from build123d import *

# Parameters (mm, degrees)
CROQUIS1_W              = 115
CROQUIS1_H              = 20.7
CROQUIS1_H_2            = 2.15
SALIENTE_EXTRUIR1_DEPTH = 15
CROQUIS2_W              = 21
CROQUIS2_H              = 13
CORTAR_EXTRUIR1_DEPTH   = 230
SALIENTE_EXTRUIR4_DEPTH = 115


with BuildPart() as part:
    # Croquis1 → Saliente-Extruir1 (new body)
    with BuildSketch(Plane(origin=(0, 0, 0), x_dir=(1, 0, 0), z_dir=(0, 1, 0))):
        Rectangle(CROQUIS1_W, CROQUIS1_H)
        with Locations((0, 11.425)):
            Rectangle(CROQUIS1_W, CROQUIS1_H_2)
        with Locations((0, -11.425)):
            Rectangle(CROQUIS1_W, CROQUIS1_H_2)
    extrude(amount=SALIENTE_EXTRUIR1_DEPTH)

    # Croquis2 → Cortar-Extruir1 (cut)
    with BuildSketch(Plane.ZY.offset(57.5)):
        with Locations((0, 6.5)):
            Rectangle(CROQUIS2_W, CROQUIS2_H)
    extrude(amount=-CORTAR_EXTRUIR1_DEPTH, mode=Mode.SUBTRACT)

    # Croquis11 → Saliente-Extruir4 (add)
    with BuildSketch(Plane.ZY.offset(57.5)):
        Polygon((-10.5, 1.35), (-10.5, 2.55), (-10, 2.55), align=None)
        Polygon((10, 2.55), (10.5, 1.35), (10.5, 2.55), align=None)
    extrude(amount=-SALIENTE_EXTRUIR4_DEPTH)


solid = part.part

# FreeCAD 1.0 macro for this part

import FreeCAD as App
import Part
import Sketcher
from FreeCAD import Vector

doc = App.newDocument("Part")
body = doc.addObject("PartDesign::Body", "Body")

sketch1 = body.newObject("Sketcher::SketchObject", "Sketch")
sketch1.AttachmentSupport = (doc.getObject("XZ_Plane"), [""])
sketch1.MapMode = "FlatFace"
sketch1.addGeometry([
    Part.LineSegment(Vector(57.5, -12.5, 0), Vector(-57.5, -12.5, 0)),
    Part.LineSegment(Vector(-57.5, -12.5, 0), Vector(-57.5, 12.5, 0)),
    Part.LineSegment(Vector(-57.5, 12.5, 0), Vector(57.5, 12.5, 0)),
    Part.LineSegment(Vector(57.5, 12.5, 0), Vector(57.5, -12.5, 0)),
], False)
sketch1.addConstraint([
    Sketcher.Constraint("Coincident", 0, 2, 1, 1),
    Sketcher.Constraint("Coincident", 1, 2, 2, 1),
    Sketcher.Constraint("Coincident", 2, 2, 3, 1),
    Sketcher.Constraint("Coincident", 3, 2, 0, 1),
    Sketcher.Constraint("Horizontal", 0),
    Sketcher.Constraint("Vertical", 1),
    Sketcher.Constraint("Horizontal", 2),
    Sketcher.Constraint("Vertical", 3),
    Sketcher.Constraint("Symmetric", 0, 2, 2, 2, -1, 1),
    Sketcher.Constraint("DistanceX", 0, 2, 0, 1, 115.0),
    Sketcher.Constraint("DistanceY", 1, 1, 1, 2, 25.0),
])
pad1 = body.newObject("PartDesign::Pad", "Pad")
pad1.Profile = sketch1
pad1.Length = 15
pad1.Reversed = True

sketch2 = body.newObject("Sketcher::SketchObject", "Sketch001")
sketch2.AttachmentSupport = (doc.getObject("YZ_Plane"), [""])
sketch2.MapMode = "FlatFace"
sketch2.AttachmentOffset = App.Placement(Vector(0, 0, -57.5), App.Rotation())
sketch2.addGeometry([
    Part.LineSegment(Vector(13, -10.5, 0), Vector(0, -10.5, 0)),
    Part.LineSegment(Vector(0, -10.5, 0), Vector(0, 10.5, 0)),
    Part.LineSegment(Vector(0, 10.5, 0), Vector(13, 10.5, 0)),
    Part.LineSegment(Vector(13, 10.5, 0), Vector(13, -10.5, 0)),
], False)
sketch2.addConstraint([
    Sketcher.Constraint("Coincident", 0, 2, 1, 1),
    Sketcher.Constraint("Coincident", 1, 2, 2, 1),
    Sketcher.Constraint("Coincident", 2, 2, 3, 1),
    Sketcher.Constraint("Coincident", 3, 2, 0, 1),
    Sketcher.Constraint("Horizontal", 0),
    Sketcher.Constraint("Vertical", 1),
    Sketcher.Constraint("Horizontal", 2),
    Sketcher.Constraint("Vertical", 3),
    Sketcher.Constraint("Symmetric", 0, 2, 1, 2, -1, 1),
    Sketcher.Constraint("DistanceX", 0, 2, 0, 1, 13.0),
    Sketcher.Constraint("DistanceY", 1, 1, 1, 2, 21.0),
])
pocket1 = body.newObject("PartDesign::Pocket", "Pocket")
pocket1.Profile = sketch2
pocket1.Length = 230
pocket1.Reversed = True

sketch3 = body.newObject("Sketcher::SketchObject", "Sketch002")
sketch3.AttachmentSupport = (doc.getObject("YZ_Plane"), [""])
sketch3.MapMode = "FlatFace"
sketch3.AttachmentOffset = App.Placement(Vector(0, 0, -57.5), App.Rotation())
sketch3.addGeometry([
    Part.LineSegment(Vector(2.55, -10.5, 0), Vector(1.35, -10.5, 0)),
    Part.LineSegment(Vector(1.35, -10.5, 0), Vector(2.55, -10, 0)),
    Part.LineSegment(Vector(2.55, -10, 0), Vector(2.55, -10.5, 0)),
    Part.LineSegment(Vector(2.55, 10, 0), Vector(1.35, 10.5, 0)),
    Part.LineSegment(Vector(1.35, 10.5, 0), Vector(2.55, 10.5, 0)),
    Part.LineSegment(Vector(2.55, 10.5, 0), Vector(2.55, 10, 0)),
], False)
sketch3.addConstraint([
    Sketcher.Constraint("Coincident", 0, 2, 1, 1),
    Sketcher.Constraint("Coincident", 1, 2, 2, 1),
    Sketcher.Constraint("Coincident", 2, 2, 0, 1),
    Sketcher.Constraint("Coincident", 3, 2, 4, 1),
    Sketcher.Constraint("Coincident", 4, 2, 5, 1),
    Sketcher.Constraint("Coincident", 5, 2, 3, 1),
    Sketcher.Constraint("Horizontal", 0),
    Sketcher.Constraint("Vertical", 2),
    Sketcher.Constraint("Horizontal", 4),
    Sketcher.Constraint("Vertical", 5),
    Sketcher.Constraint("Symmetric", 0, 2, 3, 2, -1),
    Sketcher.Constraint("Symmetric", 1, 2, 5, 2, -1),
    Sketcher.Constraint("DistanceX", 0, 2, 0, 1, 1.2),
    Sketcher.Constraint("DistanceY", 2, 2, 2, 1, 0.5),
    Sketcher.Constraint("DistanceY", 1, 2, -1, 1, 10.0),
    Sketcher.Constraint("DistanceX", -1, 1, 0, 2, 1.35),
])
pad2 = body.newObject("PartDesign::Pad", "Pad001")
pad2.Profile = sketch3
pad2.Length = 115

doc.recompute()
